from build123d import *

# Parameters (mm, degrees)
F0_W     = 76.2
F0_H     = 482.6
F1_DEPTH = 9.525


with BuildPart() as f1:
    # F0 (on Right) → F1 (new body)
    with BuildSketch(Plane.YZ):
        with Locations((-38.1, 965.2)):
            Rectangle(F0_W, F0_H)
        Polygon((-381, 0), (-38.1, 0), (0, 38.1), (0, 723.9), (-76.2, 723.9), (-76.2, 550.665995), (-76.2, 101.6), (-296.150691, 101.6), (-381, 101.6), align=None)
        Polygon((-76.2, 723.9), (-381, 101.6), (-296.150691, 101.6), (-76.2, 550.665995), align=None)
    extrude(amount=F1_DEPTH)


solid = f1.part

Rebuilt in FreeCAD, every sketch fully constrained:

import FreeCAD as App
import Part
import Sketcher

V = App.Vector
Q = App.Units.Quantity

doc = App.newDocument("Part")
body = doc.addObject("PartDesign::Body", "Body")

sketch1 = body.newObject("Sketcher::SketchObject", "Sketch")
sketch1.AttachmentSupport = (doc.getObject("YZ_Plane"), [""])
sketch1.MapMode = "FlatFace"
sketch1.addGeometry([
    Part.LineSegment(V(-76, 1206, 0), V(-76, 724, 0)),
    Part.LineSegment(V(-76, 724, 0), V(-381, 102, 0)),
    Part.LineSegment(V(-381, 102, 0), V(-381, 0, 0)),
    Part.LineSegment(V(-381, 0, 0), V(-38, 0, 0)),
    Part.LineSegment(V(-38, 0, 0), V(0, 38, 0)),
    Part.LineSegment(V(0, 38, 0), V(0, 1206, 0)),
    Part.LineSegment(V(0, 1206, 0), V(-76, 1206, 0)),
    Part.LineSegment(V(-76, 551, 0), V(-76, 102, 0)),
    Part.LineSegment(V(-76, 102, 0), V(-296, 102, 0)),
    Part.LineSegment(V(-296, 102, 0), V(-76, 551, 0)),
], False)
sketch1.addConstraint([
    Sketcher.Constraint("Coincident", 0, 2, 1, 1),
    Sketcher.Constraint("Coincident", 1, 2, 2, 1),
    Sketcher.Constraint("Coincident", 2, 2, 3, 1),
    Sketcher.Constraint("Coincident", 3, 2, 4, 1),
    Sketcher.Constraint("Coincident", 4, 2, 5, 1),
    Sketcher.Constraint("Coincident", 5, 2, 6, 1),
    Sketcher.Constraint("Coincident", 6, 2, 0, 1),
    Sketcher.Constraint("Coincident", 7, 2, 8, 1),
    Sketcher.Constraint("Coincident", 8, 2, 9, 1),
    Sketcher.Constraint("Coincident", 9, 2, 7, 1),
    Sketcher.Constraint("Vertical", 0),
    Sketcher.Constraint("Vertical", 2),
    Sketcher.Constraint("Horizontal", 3),
    Sketcher.Constraint("Vertical", 5),
    Sketcher.Constraint("Horizontal", 6),
    Sketcher.Constraint("Vertical", 7),
    Sketcher.Constraint("Horizontal", 8),
    Sketcher.Constraint("PointOnObject", 2, 2, -1),
    Sketcher.Constraint("PointOnObject", 4, 2, -2),
    Sketcher.Constraint("Parallel", 1, 9),
    Sketcher.Constraint("Horizontal", 1, 2, 7, 2),
    Sketcher.Constraint("Vertical", 6, 2, 7, 2),
    Sketcher.Constraint("DistanceX", 6, 2, 6, 1, Q("3 in")),
    Sketcher.Constraint("DistanceY", 0, 2, 0, 1, Q("19 in")),
    Sketcher.Constraint("DistanceY", 2, 2, 2, 1, Q("4 in")),
    Sketcher.Constraint("DistanceY", 5, 1, 5, 2, Q("46 in")),
    Sketcher.Constraint("DistanceX", 3, 1, 3, 2, Q("13.5 in")),
    Sketcher.Constraint("DistanceX", 1, 2, -1, 1, Q("15 in")),
    Sketcher.Constraint("Angle", 4, Q("45 deg")),
    Sketcher.Constraint("DistanceX", 8, 2, 8, 1, 219.950691),
])
pad1 = body.newObject("PartDesign::Pad", "Pad")
pad1.Profile = sketch1
pad1.Length = Q("0.375 in")

doc.recompute()
